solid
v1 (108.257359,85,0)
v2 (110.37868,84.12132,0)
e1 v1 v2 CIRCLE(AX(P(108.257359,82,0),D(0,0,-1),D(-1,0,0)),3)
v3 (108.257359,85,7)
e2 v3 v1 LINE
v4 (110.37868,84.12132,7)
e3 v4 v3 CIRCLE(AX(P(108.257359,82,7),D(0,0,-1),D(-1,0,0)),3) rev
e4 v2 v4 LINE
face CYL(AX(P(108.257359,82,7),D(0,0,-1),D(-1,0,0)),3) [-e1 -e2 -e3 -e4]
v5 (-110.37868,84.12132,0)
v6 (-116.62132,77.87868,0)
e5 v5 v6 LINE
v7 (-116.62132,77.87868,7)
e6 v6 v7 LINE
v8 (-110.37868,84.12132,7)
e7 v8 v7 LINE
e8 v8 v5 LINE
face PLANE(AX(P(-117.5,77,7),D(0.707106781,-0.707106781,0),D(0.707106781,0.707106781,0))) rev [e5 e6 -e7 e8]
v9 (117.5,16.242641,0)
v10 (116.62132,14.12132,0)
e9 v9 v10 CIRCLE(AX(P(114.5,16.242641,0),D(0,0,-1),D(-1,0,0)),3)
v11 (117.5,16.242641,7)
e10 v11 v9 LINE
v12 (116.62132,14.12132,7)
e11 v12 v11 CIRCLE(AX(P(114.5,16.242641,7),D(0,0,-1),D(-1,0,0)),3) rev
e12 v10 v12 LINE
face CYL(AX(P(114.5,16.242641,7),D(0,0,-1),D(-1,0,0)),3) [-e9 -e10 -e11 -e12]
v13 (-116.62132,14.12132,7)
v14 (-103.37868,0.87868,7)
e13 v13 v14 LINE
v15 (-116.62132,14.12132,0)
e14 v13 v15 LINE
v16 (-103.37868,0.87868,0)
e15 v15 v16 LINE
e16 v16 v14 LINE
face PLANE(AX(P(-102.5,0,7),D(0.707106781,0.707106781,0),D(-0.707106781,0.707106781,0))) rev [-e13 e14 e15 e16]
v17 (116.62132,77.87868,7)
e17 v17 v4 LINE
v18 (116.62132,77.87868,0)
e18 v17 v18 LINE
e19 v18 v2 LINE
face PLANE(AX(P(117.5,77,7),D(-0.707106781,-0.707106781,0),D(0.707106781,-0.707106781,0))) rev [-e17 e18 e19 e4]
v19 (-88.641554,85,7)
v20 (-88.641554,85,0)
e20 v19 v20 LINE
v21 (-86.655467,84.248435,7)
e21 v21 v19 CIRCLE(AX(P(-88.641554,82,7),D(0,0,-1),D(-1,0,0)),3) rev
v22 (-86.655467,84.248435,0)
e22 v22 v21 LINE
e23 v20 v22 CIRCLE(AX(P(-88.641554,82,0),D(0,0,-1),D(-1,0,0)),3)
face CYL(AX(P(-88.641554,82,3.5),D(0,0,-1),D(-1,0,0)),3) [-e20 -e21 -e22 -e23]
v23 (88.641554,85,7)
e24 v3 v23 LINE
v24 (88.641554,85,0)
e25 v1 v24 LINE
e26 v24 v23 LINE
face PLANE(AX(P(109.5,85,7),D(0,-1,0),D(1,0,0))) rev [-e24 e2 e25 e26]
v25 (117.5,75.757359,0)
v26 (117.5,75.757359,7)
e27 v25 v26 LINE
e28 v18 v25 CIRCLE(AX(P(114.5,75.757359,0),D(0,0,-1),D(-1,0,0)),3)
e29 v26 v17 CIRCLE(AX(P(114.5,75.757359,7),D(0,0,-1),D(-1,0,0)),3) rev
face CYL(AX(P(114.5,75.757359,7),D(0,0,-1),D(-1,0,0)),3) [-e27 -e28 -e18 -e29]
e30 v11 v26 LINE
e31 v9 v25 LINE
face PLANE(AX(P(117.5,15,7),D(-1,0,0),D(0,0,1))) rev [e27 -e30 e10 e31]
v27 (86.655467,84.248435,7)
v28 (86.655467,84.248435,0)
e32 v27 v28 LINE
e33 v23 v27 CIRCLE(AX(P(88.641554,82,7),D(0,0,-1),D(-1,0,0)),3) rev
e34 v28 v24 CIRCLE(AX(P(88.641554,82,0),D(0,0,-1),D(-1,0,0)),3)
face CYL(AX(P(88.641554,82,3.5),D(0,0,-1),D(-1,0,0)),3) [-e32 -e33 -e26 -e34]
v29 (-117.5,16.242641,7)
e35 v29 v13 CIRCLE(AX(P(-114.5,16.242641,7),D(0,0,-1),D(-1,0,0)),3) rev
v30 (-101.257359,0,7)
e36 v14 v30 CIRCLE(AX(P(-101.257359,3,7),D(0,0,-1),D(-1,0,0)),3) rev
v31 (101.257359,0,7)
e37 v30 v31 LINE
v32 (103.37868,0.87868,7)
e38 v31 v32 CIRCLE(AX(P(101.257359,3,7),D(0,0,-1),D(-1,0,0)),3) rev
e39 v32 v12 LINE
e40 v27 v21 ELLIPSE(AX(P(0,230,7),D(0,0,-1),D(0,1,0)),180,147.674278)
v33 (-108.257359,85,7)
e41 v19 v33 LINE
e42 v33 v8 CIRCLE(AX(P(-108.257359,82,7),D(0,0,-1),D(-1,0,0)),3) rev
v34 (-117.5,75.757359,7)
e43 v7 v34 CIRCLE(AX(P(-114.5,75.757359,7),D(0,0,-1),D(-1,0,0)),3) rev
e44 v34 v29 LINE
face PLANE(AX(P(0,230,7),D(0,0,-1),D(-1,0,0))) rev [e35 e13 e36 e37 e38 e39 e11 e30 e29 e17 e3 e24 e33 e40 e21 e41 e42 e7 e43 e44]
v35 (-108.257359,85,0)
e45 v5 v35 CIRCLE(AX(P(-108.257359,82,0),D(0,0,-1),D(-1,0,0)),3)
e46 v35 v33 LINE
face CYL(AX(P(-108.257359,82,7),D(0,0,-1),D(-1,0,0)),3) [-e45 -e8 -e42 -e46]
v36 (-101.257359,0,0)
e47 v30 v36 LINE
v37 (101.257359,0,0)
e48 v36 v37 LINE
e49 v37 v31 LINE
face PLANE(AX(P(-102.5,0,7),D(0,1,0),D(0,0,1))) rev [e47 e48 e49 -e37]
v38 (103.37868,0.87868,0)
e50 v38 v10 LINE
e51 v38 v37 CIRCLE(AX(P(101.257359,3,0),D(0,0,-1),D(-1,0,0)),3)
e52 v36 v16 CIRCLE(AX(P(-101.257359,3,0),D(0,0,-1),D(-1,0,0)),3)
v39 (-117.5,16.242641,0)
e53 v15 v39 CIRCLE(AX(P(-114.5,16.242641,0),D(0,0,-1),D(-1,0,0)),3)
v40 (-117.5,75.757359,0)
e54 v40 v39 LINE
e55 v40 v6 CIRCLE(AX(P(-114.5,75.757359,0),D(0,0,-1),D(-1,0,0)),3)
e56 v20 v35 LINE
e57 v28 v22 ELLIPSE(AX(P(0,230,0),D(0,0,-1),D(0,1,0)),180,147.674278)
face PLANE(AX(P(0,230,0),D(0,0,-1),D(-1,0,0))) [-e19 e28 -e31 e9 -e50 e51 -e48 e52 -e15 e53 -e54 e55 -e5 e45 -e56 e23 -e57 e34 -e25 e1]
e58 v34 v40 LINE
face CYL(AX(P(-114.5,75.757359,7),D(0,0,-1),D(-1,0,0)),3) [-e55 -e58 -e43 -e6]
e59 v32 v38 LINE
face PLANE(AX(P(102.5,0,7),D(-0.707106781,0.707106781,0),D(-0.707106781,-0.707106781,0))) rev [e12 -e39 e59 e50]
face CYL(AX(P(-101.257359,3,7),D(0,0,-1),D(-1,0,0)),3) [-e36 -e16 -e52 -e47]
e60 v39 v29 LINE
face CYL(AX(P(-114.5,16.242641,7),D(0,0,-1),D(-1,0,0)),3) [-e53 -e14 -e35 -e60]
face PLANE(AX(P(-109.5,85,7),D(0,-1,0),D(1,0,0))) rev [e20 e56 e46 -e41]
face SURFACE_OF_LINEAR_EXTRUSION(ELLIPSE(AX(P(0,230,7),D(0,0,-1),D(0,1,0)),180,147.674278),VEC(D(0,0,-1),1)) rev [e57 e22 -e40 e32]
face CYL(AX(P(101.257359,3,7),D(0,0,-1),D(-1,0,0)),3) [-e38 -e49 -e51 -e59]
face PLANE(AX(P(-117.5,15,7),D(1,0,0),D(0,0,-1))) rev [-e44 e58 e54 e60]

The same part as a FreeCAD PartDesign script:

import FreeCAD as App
import Part
import Sketcher


def edges_at(feature, points):
    """Names of the edges that pass closest to the given points."""
    edges = feature.Shape.Edges
    near = lambda p: min(range(len(edges)), key=lambda i: edges[i].distToShape(Part.Vertex(*p))[0])
    return sorted({f"Edge{near(p) + 1}" for p in points})

doc = App.newDocument("Part")
body = doc.addObject("PartDesign::Body", "Body")

# Sketch on XY plane
sketch1 = body.newObject("Sketcher::SketchObject", "Sketch")
sketch1.AttachmentSupport = (doc.getObject("XY_Plane"), [""])
sketch1.MapMode = "FlatFace"
sketch1.addGeometry([
    Part.LineSegment(App.Vector(-102.5, 0, 0), App.Vector(102.5, 0, 0)),  # 0
    Part.LineSegment(App.Vector(102.5, 0, 0), App.Vector(117.5, 15, 0)),  # 1
    Part.LineSegment(App.Vector(117.5, 15, 0), App.Vector(117.5, 77, 0)),  # 2
    Part.LineSegment(App.Vector(117.5, 77, 0), App.Vector(109.5, 85, 0)),  # 3
    Part.LineSegment(App.Vector(109.5, 85, 0), App.Vector(87.5, 85, 0)),  # 4
    Part.BSplineCurve([App.Vector(-87.5, 85, 0), App.Vector(0, 6.551724, 0), App.Vector(87.5, 85, 0)], [3, 3], [2.507408813, 3.775776494], False, 2, [1, 0.805555556, 1], False),  # 5
    Part.LineSegment(App.Vector(-87.5, 85, 0), App.Vector(-109.5, 85, 0)),  # 6
    Part.LineSegment(App.Vector(-109.5, 85, 0), App.Vector(-117.5, 77, 0)),  # 7
    Part.LineSegment(App.Vector(-117.5, 77, 0), App.Vector(-117.5, 15, 0)),  # 8
    Part.LineSegment(App.Vector(-117.5, 15, 0), App.Vector(-102.5, 0, 0)),  # 9
], False)
sketch1.addConstraint([
    Sketcher.Constraint("Block", 5),
    Sketcher.Constraint("Coincident", 0, 2, 1, 1),
    Sketcher.Constraint("Coincident", 1, 2, 2, 1),
    Sketcher.Constraint("Coincident", 2, 2, 3, 1),
    Sketcher.Constraint("Coincident", 3, 2, 4, 1),
    Sketcher.Constraint("Coincident", 4, 2, 5, 2),
    Sketcher.Constraint("Coincident", 5, 1, 6, 1),
    Sketcher.Constraint("Coincident", 6, 2, 7, 1),
    Sketcher.Constraint("Coincident", 7, 2, 8, 1),
    Sketcher.Constraint("Coincident", 8, 2, 9, 1),
    Sketcher.Constraint("Coincident", 9, 2, 0, 1),
    Sketcher.Constraint("Horizontal", 0),
    Sketcher.Constraint("Vertical", 2),
    Sketcher.Constraint("Horizontal", 4),
    Sketcher.Constraint("Horizontal", 6),
    Sketcher.Constraint("Vertical", 8),
    Sketcher.Constraint("Symmetric", 0, 2, 9, 2, -1, 1),
    Sketcher.Constraint("Symmetric", 2, 2, 7, 2, -2),
    Sketcher.Constraint("Perpendicular", 1, 3),
    Sketcher.Constraint("Perpendicular", 3, 7),
    Sketcher.Constraint("Perpendicular", 7, 9),
    Sketcher.Constraint("Horizontal", 1, 2, 8, 2),
    Sketcher.Constraint("DistanceX", 0, 1, 0, 2, 205.0),
    Sketcher.Constraint("DistanceX", 4, 2, 4, 1, 22.0),
    Sketcher.Constraint("DistanceY", 2, 1, 2, 2, 62.0),
])
pad1 = body.newObject("PartDesign::Pad", "Pad")
pad1.Profile = sketch1
pad1.Length = 7
doc.recompute()

fillet = body.newObject("PartDesign::Fillet", "Fillet")
fillet.Base = (pad1, edges_at(pad1, [
    (102.5, 0, 3.5),
    (-102.5, 0, 3.5),
    (-117.5, 15, 3.5),
    (-117.5, 77, 3.5),
    (-109.5, 85, 3.5),
    (-87.5, 85, 3.5),
    (87.5, 85, 3.5),
    (109.5, 85, 3.5),
    (117.5, 77, 3.5),
    (117.5, 15, 3.5),
]))
fillet.Radius = 3

doc.recompute()
